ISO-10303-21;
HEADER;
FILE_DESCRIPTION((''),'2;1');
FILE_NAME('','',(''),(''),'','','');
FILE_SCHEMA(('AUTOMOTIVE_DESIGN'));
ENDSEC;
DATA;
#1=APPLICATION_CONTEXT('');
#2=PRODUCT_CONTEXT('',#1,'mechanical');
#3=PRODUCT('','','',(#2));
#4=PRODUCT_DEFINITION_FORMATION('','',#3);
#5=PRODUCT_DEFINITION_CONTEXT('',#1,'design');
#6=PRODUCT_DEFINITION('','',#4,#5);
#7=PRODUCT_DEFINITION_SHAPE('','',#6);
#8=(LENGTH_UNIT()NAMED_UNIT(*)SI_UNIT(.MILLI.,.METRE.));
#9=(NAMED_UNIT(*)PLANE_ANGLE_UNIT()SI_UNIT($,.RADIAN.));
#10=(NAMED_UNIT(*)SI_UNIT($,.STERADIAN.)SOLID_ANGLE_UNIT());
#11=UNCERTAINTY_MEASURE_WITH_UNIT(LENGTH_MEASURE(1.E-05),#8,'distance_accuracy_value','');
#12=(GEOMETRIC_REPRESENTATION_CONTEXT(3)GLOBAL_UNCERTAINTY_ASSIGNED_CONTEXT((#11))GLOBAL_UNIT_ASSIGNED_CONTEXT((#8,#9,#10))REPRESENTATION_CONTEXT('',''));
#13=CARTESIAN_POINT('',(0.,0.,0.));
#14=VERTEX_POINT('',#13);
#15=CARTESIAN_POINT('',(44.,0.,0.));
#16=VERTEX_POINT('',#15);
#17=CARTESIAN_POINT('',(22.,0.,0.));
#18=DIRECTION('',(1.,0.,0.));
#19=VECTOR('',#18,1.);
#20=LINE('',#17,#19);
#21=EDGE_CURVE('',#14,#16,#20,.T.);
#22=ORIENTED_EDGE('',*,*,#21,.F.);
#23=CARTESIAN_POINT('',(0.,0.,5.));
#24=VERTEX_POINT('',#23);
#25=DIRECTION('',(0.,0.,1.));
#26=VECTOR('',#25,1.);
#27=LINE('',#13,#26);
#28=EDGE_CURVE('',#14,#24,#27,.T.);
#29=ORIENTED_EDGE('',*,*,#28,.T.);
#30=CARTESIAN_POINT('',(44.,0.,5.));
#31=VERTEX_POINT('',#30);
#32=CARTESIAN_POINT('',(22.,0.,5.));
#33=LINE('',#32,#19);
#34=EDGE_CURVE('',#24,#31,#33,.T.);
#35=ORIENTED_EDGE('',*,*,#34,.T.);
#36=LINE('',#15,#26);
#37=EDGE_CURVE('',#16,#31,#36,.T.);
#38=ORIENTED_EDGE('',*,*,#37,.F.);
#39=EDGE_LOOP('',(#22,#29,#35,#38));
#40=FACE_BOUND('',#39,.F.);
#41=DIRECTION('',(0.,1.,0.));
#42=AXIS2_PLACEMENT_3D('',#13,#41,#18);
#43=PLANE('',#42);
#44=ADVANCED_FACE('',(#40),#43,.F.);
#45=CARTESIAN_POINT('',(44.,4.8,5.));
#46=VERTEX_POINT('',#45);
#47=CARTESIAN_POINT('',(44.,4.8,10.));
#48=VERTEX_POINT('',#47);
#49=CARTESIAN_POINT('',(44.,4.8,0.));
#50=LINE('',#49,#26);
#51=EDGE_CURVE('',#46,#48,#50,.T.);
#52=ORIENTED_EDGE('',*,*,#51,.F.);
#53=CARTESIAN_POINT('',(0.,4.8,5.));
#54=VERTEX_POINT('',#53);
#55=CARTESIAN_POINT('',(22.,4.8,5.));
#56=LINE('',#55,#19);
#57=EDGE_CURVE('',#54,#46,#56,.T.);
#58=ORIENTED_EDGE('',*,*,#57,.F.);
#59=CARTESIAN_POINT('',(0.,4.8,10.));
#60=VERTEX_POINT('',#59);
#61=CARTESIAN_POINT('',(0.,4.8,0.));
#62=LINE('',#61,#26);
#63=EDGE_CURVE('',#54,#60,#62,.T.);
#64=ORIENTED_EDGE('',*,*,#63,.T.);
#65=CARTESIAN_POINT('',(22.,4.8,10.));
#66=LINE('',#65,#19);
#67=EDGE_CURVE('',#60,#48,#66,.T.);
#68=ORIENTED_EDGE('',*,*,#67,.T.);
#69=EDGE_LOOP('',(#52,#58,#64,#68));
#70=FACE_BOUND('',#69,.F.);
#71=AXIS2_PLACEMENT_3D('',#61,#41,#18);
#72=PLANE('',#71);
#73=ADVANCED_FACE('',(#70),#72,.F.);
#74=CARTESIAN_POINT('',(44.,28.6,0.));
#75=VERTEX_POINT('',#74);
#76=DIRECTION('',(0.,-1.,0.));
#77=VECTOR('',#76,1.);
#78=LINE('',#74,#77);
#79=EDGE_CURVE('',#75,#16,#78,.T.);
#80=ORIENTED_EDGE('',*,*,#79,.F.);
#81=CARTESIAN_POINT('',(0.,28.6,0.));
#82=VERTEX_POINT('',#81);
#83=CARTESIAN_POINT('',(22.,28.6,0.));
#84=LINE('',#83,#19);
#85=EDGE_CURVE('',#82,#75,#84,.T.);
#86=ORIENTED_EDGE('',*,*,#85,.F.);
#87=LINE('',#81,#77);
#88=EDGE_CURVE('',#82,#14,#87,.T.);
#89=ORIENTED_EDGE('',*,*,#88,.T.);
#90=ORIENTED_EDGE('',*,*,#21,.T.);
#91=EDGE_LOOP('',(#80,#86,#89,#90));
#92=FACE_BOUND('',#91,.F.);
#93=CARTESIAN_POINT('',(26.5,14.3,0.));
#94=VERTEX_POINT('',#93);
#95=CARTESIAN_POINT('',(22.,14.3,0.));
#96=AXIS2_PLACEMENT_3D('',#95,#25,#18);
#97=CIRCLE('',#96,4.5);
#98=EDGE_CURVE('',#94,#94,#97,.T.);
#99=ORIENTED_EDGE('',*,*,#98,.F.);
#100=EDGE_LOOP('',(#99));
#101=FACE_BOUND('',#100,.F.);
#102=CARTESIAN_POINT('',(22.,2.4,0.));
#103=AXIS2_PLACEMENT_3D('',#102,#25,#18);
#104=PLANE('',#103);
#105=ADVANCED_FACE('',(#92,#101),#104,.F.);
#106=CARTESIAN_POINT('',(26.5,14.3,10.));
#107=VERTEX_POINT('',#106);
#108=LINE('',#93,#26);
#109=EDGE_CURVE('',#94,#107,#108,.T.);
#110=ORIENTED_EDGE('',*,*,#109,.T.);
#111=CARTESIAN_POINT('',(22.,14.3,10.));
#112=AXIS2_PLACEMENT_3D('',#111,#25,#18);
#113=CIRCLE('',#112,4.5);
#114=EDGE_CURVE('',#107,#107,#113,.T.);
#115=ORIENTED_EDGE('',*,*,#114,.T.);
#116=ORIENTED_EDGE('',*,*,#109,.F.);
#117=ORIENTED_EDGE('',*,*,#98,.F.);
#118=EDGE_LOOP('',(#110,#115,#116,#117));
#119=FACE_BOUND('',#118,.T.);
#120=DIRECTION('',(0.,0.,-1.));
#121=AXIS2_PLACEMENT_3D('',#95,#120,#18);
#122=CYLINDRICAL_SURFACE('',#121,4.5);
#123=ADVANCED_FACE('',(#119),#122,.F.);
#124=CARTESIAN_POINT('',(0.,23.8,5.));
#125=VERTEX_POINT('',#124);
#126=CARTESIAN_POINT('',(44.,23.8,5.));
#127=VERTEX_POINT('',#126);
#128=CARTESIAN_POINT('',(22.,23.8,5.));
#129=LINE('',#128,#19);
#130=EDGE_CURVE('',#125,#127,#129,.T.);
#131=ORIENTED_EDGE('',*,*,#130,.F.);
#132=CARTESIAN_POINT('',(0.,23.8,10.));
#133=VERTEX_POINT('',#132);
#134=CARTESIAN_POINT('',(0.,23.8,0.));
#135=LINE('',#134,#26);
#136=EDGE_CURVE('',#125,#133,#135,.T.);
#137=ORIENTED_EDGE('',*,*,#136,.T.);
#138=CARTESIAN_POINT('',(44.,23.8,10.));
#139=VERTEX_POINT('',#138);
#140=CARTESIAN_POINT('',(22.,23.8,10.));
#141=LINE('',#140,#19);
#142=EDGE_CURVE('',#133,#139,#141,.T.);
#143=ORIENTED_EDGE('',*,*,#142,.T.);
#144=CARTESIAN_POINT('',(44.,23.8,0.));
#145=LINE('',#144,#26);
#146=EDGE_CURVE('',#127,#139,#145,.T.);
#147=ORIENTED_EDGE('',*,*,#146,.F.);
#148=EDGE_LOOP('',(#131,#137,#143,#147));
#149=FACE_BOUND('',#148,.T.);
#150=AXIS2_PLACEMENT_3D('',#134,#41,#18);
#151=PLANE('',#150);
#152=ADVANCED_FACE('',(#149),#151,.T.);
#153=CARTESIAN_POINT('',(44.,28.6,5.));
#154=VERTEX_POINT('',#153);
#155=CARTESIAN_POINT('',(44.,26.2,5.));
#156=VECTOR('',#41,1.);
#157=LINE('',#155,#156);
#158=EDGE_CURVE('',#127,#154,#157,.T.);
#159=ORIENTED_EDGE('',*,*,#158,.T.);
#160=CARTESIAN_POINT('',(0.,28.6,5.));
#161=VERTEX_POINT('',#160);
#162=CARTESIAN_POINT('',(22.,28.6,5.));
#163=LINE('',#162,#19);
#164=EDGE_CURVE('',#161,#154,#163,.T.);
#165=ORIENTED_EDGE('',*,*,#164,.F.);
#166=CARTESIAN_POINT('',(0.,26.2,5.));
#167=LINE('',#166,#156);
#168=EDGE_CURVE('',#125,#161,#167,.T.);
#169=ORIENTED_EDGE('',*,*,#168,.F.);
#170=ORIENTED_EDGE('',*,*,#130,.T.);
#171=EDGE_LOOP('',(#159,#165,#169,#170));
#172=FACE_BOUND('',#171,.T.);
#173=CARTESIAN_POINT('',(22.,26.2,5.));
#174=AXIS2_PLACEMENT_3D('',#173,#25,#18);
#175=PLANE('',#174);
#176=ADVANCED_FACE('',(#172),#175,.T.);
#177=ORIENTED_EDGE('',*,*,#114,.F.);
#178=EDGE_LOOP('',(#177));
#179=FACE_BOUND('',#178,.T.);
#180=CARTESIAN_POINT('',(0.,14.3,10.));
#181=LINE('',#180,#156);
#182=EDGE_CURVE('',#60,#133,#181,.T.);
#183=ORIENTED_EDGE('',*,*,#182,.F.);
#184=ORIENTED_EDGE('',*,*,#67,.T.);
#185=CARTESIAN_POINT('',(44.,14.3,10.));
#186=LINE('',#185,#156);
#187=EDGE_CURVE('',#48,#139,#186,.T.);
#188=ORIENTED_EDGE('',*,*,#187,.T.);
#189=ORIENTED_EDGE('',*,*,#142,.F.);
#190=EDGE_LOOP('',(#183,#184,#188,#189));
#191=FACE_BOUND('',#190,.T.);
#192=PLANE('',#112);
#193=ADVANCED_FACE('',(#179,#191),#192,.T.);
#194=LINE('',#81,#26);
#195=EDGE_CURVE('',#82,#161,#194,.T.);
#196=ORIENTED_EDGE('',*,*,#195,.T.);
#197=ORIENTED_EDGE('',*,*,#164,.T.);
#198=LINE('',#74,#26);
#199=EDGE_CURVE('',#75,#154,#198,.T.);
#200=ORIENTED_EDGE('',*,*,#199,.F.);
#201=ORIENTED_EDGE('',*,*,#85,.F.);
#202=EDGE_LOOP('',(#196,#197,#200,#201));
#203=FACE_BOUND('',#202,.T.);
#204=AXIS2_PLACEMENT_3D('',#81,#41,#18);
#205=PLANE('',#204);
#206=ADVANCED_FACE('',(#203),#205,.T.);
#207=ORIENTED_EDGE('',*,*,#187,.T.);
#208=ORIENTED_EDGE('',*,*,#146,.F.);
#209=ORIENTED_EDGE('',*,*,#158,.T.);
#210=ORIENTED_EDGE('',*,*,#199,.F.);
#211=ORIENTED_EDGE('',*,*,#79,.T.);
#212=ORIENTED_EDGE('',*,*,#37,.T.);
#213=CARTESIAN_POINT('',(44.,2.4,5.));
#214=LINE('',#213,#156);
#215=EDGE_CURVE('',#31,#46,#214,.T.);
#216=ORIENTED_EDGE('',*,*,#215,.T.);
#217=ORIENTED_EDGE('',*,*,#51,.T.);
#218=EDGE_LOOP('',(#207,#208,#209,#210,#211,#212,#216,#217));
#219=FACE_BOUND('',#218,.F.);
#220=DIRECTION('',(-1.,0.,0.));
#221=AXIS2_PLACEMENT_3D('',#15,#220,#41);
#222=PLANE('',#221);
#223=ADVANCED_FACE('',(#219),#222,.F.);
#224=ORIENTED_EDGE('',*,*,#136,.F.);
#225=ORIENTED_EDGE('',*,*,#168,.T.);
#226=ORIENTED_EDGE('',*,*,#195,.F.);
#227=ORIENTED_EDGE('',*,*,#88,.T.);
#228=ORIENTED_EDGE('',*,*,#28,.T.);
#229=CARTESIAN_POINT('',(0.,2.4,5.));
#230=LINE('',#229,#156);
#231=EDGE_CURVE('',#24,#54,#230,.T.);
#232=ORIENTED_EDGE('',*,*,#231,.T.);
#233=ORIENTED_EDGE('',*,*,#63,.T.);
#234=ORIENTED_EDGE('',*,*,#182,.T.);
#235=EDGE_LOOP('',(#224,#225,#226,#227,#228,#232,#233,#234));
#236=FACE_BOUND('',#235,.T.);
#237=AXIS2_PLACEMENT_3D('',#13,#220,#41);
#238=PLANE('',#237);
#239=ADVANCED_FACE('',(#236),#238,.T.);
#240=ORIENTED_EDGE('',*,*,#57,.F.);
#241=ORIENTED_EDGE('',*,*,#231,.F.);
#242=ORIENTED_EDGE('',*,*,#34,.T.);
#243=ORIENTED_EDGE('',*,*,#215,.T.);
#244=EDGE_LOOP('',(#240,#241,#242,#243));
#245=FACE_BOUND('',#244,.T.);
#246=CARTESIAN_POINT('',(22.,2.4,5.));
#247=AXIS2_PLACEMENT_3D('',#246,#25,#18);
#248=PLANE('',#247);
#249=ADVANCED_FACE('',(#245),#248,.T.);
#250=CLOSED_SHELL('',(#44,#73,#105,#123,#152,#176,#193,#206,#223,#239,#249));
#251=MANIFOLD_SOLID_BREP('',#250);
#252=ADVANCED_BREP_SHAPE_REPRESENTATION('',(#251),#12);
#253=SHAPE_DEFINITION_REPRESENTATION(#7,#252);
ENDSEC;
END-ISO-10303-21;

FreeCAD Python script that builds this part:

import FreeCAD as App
import Part
import Sketcher
from FreeCAD import Vector


def add_polygon(sketch, points):
    """Adds a closed chain of lines whose ends are joined by coincident constraints."""
    first, n = sketch.GeometryCount, len(points)
    for a, b in zip(points, points[1:] + points[:1]):
        sketch.addGeometry(Part.LineSegment(App.Vector(*a, 0), App.Vector(*b, 0)), False)
    for i in range(n):
        sketch.addConstraint(Sketcher.Constraint("Coincident", first + i, 2, first + (i + 1) % n, 1))

doc = App.newDocument("Part")
body = doc.addObject("PartDesign::Body", "Body")

sketch1 = body.newObject("Sketcher::SketchObject", "Sketch")
sketch1.AttachmentSupport = (doc.getObject("XY_Plane"), [""])
sketch1.MapMode = "FlatFace"
add_polygon(sketch1, [(0, 23.8), (0, 4.8), (44, 4.8), (44, 23.8)])
sketch1.addGeometry(Part.Circle(Vector(22, 14.3, 0), Vector(0, 0, 1), 4.5), False)
sketch1.addConstraint([
    Sketcher.Constraint("Vertical", 0),
    Sketcher.Constraint("Horizontal", 1),
    Sketcher.Constraint("Vertical", 2),
    Sketcher.Constraint("Horizontal", 3),
    Sketcher.Constraint("PointOnObject", 0, 2, -2),
    Sketcher.Constraint("Diameter", 4, 9.0),
    Sketcher.Constraint("DistanceX", 1, 1, 1, 2, 44.0),
    Sketcher.Constraint("DistanceY", 0, 2, 0, 1, 19.0),
    Sketcher.Constraint("DistanceX", -1, 1, 4, 3, 22.0),
    Sketcher.Constraint("DistanceY", -1, 1, 4, 3, 14.3),
    Sketcher.Constraint("DistanceY", -1, 1, 0, 2, 4.8),
])
pad1 = body.newObject("PartDesign::Pad", "Pad")
pad1.Profile = sketch1
pad1.Length = 10

sketch2 = body.newObject("Sketcher::SketchObject", "Sketch001")
sketch2.AttachmentSupport = (doc.getObject("XY_Plane"), [""])
sketch2.MapMode = "FlatFace"
add_polygon(sketch2, [(0, 4.8), (0, 0), (44, 0), (44, 4.8)])
add_polygon(sketch2, [(0, 28.6), (0, 23.8), (44, 23.8), (44, 28.6)])
sketch2.addConstraint([
    Sketcher.Constraint("Vertical", 0),
    Sketcher.Constraint("Horizontal", 1),
    Sketcher.Constraint("Vertical", 2),
    Sketcher.Constraint("Horizontal", 3),
    Sketcher.Constraint("Vertical", 4),
    Sketcher.Constraint("Horizontal", 5),
    Sketcher.Constraint("Vertical", 6),
    Sketcher.Constraint("Horizontal", 7),
    Sketcher.Constraint("Coincident", 0, 2, -1, 1),
    Sketcher.Constraint("PointOnObject", 4, 2, -2),
    Sketcher.Constraint("Vertical", 2, 2, 5, 2),
    Sketcher.Constraint("Equal", 2, 4),
    Sketcher.Constraint("DistanceX", 1, 1, 1, 2, 44.0),
    Sketcher.Constraint("DistanceY", 0, 2, 0, 1, 4.8),
    Sketcher.Constraint("DistanceY", 3, 2, 4, 2, 19.0),
])
pad2 = body.newObject("PartDesign::Pad", "Pad001")
pad2.Profile = sketch2
pad2.Length = 5

doc.recompute()
